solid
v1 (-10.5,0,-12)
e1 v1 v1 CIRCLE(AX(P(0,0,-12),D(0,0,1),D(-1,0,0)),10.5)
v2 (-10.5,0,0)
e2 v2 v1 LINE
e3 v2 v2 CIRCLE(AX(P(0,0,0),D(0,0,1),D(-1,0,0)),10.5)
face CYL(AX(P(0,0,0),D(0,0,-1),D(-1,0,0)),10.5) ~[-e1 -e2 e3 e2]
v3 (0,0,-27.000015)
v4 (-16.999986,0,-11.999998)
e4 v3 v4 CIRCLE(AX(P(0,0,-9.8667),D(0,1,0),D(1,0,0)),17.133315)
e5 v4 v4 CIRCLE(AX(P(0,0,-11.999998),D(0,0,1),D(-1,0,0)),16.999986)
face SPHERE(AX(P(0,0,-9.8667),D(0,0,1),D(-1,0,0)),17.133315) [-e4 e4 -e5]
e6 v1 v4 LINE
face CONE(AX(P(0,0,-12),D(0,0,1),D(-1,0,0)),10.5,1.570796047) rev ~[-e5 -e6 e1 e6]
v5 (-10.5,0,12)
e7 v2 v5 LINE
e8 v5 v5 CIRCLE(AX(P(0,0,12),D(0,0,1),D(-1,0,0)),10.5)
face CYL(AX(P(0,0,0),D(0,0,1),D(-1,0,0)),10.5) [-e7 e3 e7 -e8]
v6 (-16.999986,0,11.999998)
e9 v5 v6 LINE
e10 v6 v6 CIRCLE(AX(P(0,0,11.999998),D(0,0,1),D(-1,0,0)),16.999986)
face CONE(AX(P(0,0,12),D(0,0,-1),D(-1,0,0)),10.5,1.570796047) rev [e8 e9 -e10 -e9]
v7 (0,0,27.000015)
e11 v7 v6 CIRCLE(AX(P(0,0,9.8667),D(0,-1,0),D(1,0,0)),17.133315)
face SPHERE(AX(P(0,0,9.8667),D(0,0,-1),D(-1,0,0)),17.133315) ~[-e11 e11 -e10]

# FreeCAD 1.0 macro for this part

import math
import FreeCAD as App
import Part
import Sketcher
from FreeCAD import Vector

doc = App.newDocument("Part")
params = doc.addObject("Spreadsheet::Sheet", "Params")
for row, (alias, value) in enumerate([
    ("sketch1_height", "54 mm"),
    ("sketch1_height2", "24 mm"),
    ("sketch1_width", "6.5 mm"),
    ("revolution_angle", "360 deg"),
], start=1):
    params.set(f"A{row}", alias)
    params.set(f"B{row}", "=" + value)
    params.setAlias(f"B{row}", alias)

body = doc.addObject("PartDesign::Body", "Body")

# Sketch on XZ plane
sketch1 = body.newObject("Sketcher::SketchObject", "Sketch")
sketch1.AttachmentSupport = (doc.getObject("XZ_Plane"), [""])
sketch1.MapMode = "FlatFace"
sketch1.addGeometry([
    Part.LineSegment(Vector(0, -27, 0), Vector(0, 27, 0)),  # 0
    Part.ArcOfCircle(Part.Circle(Vector(0, 9.8667, 0), Vector(0, 0, 1), 17.1333), math.radians(90), math.radians(172.847442)),  # 1
    Part.LineSegment(Vector(-17, 12, 0), Vector(-10.5, 12, 0)),  # 2
    Part.LineSegment(Vector(-10.5, 12, 0), Vector(-10.5, -12, 0)),  # 3
    Part.LineSegment(Vector(-10.5, -12, 0), Vector(-17, -12, 0)),  # 4
    Part.ArcOfCircle(Part.Circle(Vector(0, -9.8667, 0), Vector(0, 0, 1), 17.1333), math.radians(-172.847442), math.radians(-90)),  # 5
], False)
sketch1.addConstraint([
    Sketcher.Constraint("Coincident", 0, 2, 1, 1),
    Sketcher.Constraint("Coincident", 1, 2, 2, 1),
    Sketcher.Constraint("Coincident", 2, 2, 3, 1),
    Sketcher.Constraint("Coincident", 3, 2, 4, 1),
    Sketcher.Constraint("Coincident", 4, 2, 5, 1),
    Sketcher.Constraint("Coincident", 5, 2, 0, 1),
    Sketcher.Constraint("Vertical", 0),
    Sketcher.Constraint("Horizontal", 2),
    Sketcher.Constraint("Vertical", 3),
    Sketcher.Constraint("Horizontal", 4),
    Sketcher.Constraint("Equal", 1, 5),
    Sketcher.Constraint("Symmetric", 1, 3, 5, 3, -1, 1),
    Sketcher.Constraint("Symmetric", 1, 2, 4, 2, -1),
    Sketcher.Constraint("PointOnObject", 0, 2, -2),
    Sketcher.Constraint("DistanceY", 0, 1, 0, 2, 54.0),
    Sketcher.Constraint("DistanceY", 3, 2, 3, 1, 24.0),
    Sketcher.Constraint("DistanceX", 2, 1, 2, 2, 6.5),
    Sketcher.Constraint("DistanceX", 1, 2, -1, 1, 17.0),
])
sketch1.setExpression("Constraints[14]", "Params.sketch1_height")
sketch1.setExpression("Constraints[15]", "Params.sketch1_height2")
sketch1.setExpression("Constraints[16]", "Params.sketch1_width")
revolution = body.newObject("PartDesign::Revolution", "Revolution")
revolution.Profile = sketch1
revolution.ReferenceAxis = (sketch1, ["V_Axis"])
revolution.setExpression("Angle", "Params.revolution_angle")

doc.recompute()
